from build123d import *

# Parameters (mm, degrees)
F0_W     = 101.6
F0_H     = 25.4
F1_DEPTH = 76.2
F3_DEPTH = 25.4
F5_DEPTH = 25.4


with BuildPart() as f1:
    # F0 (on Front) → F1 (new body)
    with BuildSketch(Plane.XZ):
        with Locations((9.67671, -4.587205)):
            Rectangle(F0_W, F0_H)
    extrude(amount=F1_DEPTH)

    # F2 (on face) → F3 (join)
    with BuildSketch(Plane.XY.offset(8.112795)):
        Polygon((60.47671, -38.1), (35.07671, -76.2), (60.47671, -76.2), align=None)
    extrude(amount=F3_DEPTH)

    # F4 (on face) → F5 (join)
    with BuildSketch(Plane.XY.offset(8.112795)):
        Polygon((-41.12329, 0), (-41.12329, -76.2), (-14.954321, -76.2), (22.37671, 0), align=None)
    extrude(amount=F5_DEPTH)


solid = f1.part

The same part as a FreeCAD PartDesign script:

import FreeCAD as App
import Part
import Sketcher
from FreeCAD import Vector
Q = App.Units.Quantity

doc = App.newDocument("Part")
body = doc.addObject("PartDesign::Body", "Body")

sketch1 = body.newObject("Sketcher::SketchObject", "Sketch")
sketch1.AttachmentSupport = (doc.getObject("XZ_Plane"), [""])
sketch1.MapMode = "FlatFace"
sketch1.addGeometry([
    Part.LineSegment(Vector(-41.12329, 8.112795, 0), Vector(-41.12329, -17.287205, 0)),
    Part.LineSegment(Vector(-41.12329, -17.287205, 0), Vector(60.47671, -17.287205, 0)),
    Part.LineSegment(Vector(60.47671, -17.287205, 0), Vector(60.47671, 8.112795, 0)),
    Part.LineSegment(Vector(60.47671, 8.112795, 0), Vector(-41.12329, 8.112795, 0)),
], False)
sketch1.addConstraint([
    Sketcher.Constraint("Coincident", 0, 2, 1, 1),
    Sketcher.Constraint("Coincident", 1, 2, 2, 1),
    Sketcher.Constraint("Coincident", 2, 2, 3, 1),
    Sketcher.Constraint("Coincident", 3, 2, 0, 1),
    Sketcher.Constraint("Vertical", 0),
    Sketcher.Constraint("Horizontal", 1),
    Sketcher.Constraint("Vertical", 2),
    Sketcher.Constraint("Horizontal", 3),
    Sketcher.Constraint("DistanceX", 1, 1, 1, 2, Q("4 in")),
    Sketcher.Constraint("DistanceY", 0, 2, 0, 1, Q("1 in")),
    Sketcher.Constraint("DistanceX", 0, 2, -1, 1, Q("41.12329 mm")),
    Sketcher.Constraint("DistanceY", 0, 2, -1, 1, Q("17.287205 mm")),
])
pad1 = body.newObject("PartDesign::Pad", "Pad")
pad1.Profile = sketch1
pad1.Length = Q("3 in")

sketch2 = body.newObject("Sketcher::SketchObject", "Sketch001")
sketch2.AttachmentSupport = (doc.getObject("XY_Plane"), [""])
sketch2.MapMode = "FlatFace"
sketch2.AttachmentOffset = App.Placement(Vector(0, 0, 8.112795), App.Rotation())
sketch2.addGeometry([
    Part.LineSegment(Vector(60.47671, -38.1, 0), Vector(35.07671, -76.2, 0)),
    Part.LineSegment(Vector(35.07671, -76.2, 0), Vector(60.47671, -76.2, 0)),
    Part.LineSegment(Vector(60.47671, -76.2, 0), Vector(60.47671, -38.1, 0)),
], False)
sketch2.addConstraint([
    Sketcher.Constraint("Coincident", 0, 2, 1, 1),
    Sketcher.Constraint("Coincident", 1, 2, 2, 1),
    Sketcher.Constraint("Coincident", 2, 2, 0, 1),
    Sketcher.Constraint("Horizontal", 1),
    Sketcher.Constraint("Vertical", 2),
    Sketcher.Constraint("DistanceX", 1, 1, 1, 2, Q("1 in")),
    Sketcher.Constraint("DistanceY", 2, 1, 2, 2, Q("1.5 in")),
    Sketcher.Constraint("DistanceY", 0, 2, -1, 1, Q("3 in")),
    Sketcher.Constraint("DistanceX", -1, 1, 0, 2, Q("35.07671 mm")),
])
pad2 = body.newObject("PartDesign::Pad", "Pad001")
pad2.Profile = sketch2
pad2.Length = Q("1 in")

sketch3 = body.newObject("Sketcher::SketchObject", "Sketch002")
sketch3.AttachmentSupport = (doc.getObject("XY_Plane"), [""])
sketch3.MapMode = "FlatFace"
sketch3.AttachmentOffset = App.Placement(Vector(0, 0, 8.112795), App.Rotation())
sketch3.addGeometry([
    Part.LineSegment(Vector(-41.12329, 0, 0), Vector(-41.12329, -76.2, 0)),
    Part.LineSegment(Vector(-41.12329, -76.2, 0), Vector(-14.954321, -76.2, 0)),
    Part.LineSegment(Vector(-14.954321, -76.2, 0), Vector(22.37671, 0, 0)),
    Part.LineSegment(Vector(22.37671, 0, 0), Vector(-41.12329, 0, 0)),
], False)
sketch3.addConstraint([
    Sketcher.Constraint("Coincident", 0, 2, 1, 1),
    Sketcher.Constraint("Coincident", 1, 2, 2, 1),
    Sketcher.Constraint("Coincident", 2, 2, 3, 1),
    Sketcher.Constraint("Coincident", 3, 2, 0, 1),
    Sketcher.Constraint("Vertical", 0),
    Sketcher.Constraint("Horizontal", 1),
    Sketcher.Constraint("Horizontal", 3),
    Sketcher.Constraint("PointOnObject", 2, 2, -1),
    Sketcher.Constraint("DistanceY", 0, 2, 0, 1, Q("3 in")),
    Sketcher.Constraint("DistanceX", 3, 2, 3, 1, Q("2.5 in")),
    Sketcher.Constraint("DistanceX", 1, 1, 1, 2, Q("26.168969 mm")),
    Sketcher.Constraint("DistanceX", 0, 2, -1, 1, Q("41.12329 mm")),
])
pad3 = body.newObject("PartDesign::Pad", "Pad002")
pad3.Profile = sketch3
pad3.Length = Q("1 in")

doc.recompute()
